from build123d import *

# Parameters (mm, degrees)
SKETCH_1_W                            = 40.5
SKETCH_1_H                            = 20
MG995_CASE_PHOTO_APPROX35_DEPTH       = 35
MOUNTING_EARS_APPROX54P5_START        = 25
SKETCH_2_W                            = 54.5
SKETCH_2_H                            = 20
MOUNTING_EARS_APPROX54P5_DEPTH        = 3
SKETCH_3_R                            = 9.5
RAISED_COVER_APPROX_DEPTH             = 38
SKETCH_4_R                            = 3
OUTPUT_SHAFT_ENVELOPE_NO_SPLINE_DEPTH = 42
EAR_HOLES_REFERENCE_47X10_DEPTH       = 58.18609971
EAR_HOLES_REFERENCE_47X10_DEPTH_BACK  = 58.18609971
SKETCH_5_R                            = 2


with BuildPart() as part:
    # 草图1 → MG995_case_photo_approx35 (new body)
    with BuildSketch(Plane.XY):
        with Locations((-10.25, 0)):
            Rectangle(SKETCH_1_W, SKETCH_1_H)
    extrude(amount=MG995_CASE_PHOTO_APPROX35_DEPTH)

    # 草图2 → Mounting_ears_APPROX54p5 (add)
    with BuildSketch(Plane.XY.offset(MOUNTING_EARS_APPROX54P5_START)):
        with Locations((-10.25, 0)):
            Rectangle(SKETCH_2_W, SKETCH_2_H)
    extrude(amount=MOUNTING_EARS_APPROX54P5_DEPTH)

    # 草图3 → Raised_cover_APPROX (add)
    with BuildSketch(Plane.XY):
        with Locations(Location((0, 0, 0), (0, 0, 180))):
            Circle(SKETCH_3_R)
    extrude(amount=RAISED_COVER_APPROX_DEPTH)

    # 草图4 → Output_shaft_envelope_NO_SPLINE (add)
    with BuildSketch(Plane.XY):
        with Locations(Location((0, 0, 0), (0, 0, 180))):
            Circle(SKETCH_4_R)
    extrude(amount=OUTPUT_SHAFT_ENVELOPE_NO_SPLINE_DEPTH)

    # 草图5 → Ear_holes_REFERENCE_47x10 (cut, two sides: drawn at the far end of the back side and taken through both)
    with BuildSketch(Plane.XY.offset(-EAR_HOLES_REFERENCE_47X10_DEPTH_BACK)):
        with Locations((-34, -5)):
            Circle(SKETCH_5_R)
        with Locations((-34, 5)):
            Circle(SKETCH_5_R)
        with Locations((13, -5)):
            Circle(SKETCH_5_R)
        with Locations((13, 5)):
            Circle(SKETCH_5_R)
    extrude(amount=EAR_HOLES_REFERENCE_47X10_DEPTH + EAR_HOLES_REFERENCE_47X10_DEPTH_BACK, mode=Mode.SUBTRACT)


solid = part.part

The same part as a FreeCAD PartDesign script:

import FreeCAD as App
import Part
import Sketcher
from FreeCAD import Vector
Q = App.Units.Quantity

doc = App.newDocument("Part")
body = doc.addObject("PartDesign::Body", "Body")

# Sketch on XY plane
sketch1 = body.newObject("Sketcher::SketchObject", "Sketch")
sketch1.AttachmentSupport = (doc.getObject("XY_Plane"), [""])
sketch1.MapMode = "FlatFace"
sketch1.addGeometry([
    Part.LineSegment(Vector(-30, 10, 0), Vector(-30, -10, 0)),
    Part.LineSegment(Vector(-30, -10, 0), Vector(10, -10, 0)),
    Part.LineSegment(Vector(10, -10, 0), Vector(10, 10, 0)),
    Part.LineSegment(Vector(10, 10, 0), Vector(-30, 10, 0)),
], False)
sketch1.addConstraint([
    Sketcher.Constraint("Coincident", 0, 2, 1, 1),
    Sketcher.Constraint("Coincident", 1, 2, 2, 1),
    Sketcher.Constraint("Coincident", 2, 2, 3, 1),
    Sketcher.Constraint("Coincident", 3, 2, 0, 1),
    Sketcher.Constraint("Vertical", 0),
    Sketcher.Constraint("Horizontal", 1),
    Sketcher.Constraint("Vertical", 2),
    Sketcher.Constraint("Horizontal", 3),
    Sketcher.Constraint("DistanceY", 0, 2, 0, 1, Q("20 mm")),
    Sketcher.Constraint("DistanceX", 1, 1, 1, 2, Q("40.5 mm")),
    Sketcher.Constraint("DistanceY", 0, 2, -1, 1, Q("10 mm")),
    Sketcher.Constraint("DistanceX", -1, 1, 1, 2, Q("10 mm")),
])
pad1 = body.newObject("PartDesign::Pad", "Pad")
pad1.Profile = sketch1
pad1.Length = 35

# Sketch on XY plane
sketch2 = body.newObject("Sketcher::SketchObject", "Sketch001")
sketch2.AttachmentSupport = (doc.getObject("XY_Plane"), [""])
sketch2.MapMode = "FlatFace"
sketch2.AttachmentOffset = App.Placement(Vector(0, 0, 25), App.Rotation())
sketch2.addGeometry([
    Part.LineSegment(Vector(-38, 10, 0), Vector(-38, -10, 0)),
    Part.LineSegment(Vector(-38, -10, 0), Vector(17, -10, 0)),
    Part.LineSegment(Vector(17, -10, 0), Vector(17, 10, 0)),
    Part.LineSegment(Vector(17, 10, 0), Vector(-38, 10, 0)),
], False)
sketch2.addConstraint([
    Sketcher.Constraint("Coincident", 0, 2, 1, 1),
    Sketcher.Constraint("Coincident", 1, 2, 2, 1),
    Sketcher.Constraint("Coincident", 2, 2, 3, 1),
    Sketcher.Constraint("Coincident", 3, 2, 0, 1),
    Sketcher.Constraint("Vertical", 0),
    Sketcher.Constraint("Horizontal", 1),
    Sketcher.Constraint("Vertical", 2),
    Sketcher.Constraint("Horizontal", 3),
    Sketcher.Constraint("DistanceY", 0, 2, 0, 1, Q("20 mm")),
    Sketcher.Constraint("DistanceX", 1, 1, 1, 2, Q("54.5 mm")),
    Sketcher.Constraint("DistanceY", 0, 2, -1, 1, Q("10 mm")),
    Sketcher.Constraint("DistanceX", -1, 1, 1, 2, Q("17 mm")),
])
pad2 = body.newObject("PartDesign::Pad", "Pad001")
pad2.Profile = sketch2
pad2.Length = 3

# Sketch on XY plane
sketch3 = body.newObject("Sketcher::SketchObject", "Sketch002")
sketch3.AttachmentSupport = (doc.getObject("XY_Plane"), [""])
sketch3.MapMode = "FlatFace"
sketch3.addGeometry(Part.Circle(Vector(0, 0, 0), Vector(0, 0, 1), 10), False)
sketch3.addConstraint([
    Sketcher.Constraint("Coincident", 0, 3, -1, 1),
    Sketcher.Constraint("Diameter", 0, Q("19 mm")),
])
pad3 = body.newObject("PartDesign::Pad", "Pad002")
pad3.Profile = sketch3
pad3.Length = 38

# Sketch on XY plane
sketch4 = body.newObject("Sketcher::SketchObject", "Sketch003")
sketch4.AttachmentSupport = (doc.getObject("XY_Plane"), [""])
sketch4.MapMode = "FlatFace"
sketch4.addGeometry(Part.Circle(Vector(0, 0, 0), Vector(0, 0, 1), 3), False)
sketch4.addConstraint([
    Sketcher.Constraint("Coincident", 0, 3, -1, 1),
    Sketcher.Constraint("Diameter", 0, Q("6 mm")),
])
pad4 = body.newObject("PartDesign::Pad", "Pad003")
pad4.Profile = sketch4
pad4.Length = 42

# Sketch on XY plane
sketch5 = body.newObject("Sketcher::SketchObject", "Sketch004")
sketch5.AttachmentSupport = (doc.getObject("XY_Plane"), [""])
sketch5.MapMode = "FlatFace"
sketch5.addGeometry([
    Part.Circle(Vector(-34, -5, 0), Vector(0, 0, 1), 2),
    Part.Circle(Vector(-34, 5, 0), Vector(0, 0, 1), 2),
    Part.Circle(Vector(13, -5, 0), Vector(0, 0, 1), 2),
    Part.Circle(Vector(13, 5, 0), Vector(0, 0, 1), 2),
], False)
sketch5.addConstraint([
    Sketcher.Constraint("Equal", 0, 1),
    Sketcher.Constraint("Equal", 1, 2),
    Sketcher.Constraint("Equal", 2, 3),
    Sketcher.Constraint("Symmetric", 0, 3, 1, 3, -1),
    Sketcher.Constraint("Symmetric", 2, 3, 3, 3, -1),
    Sketcher.Constraint("Horizontal", 0, 3, 2, 3),
    Sketcher.Constraint("Diameter", 0, Q("4 mm")),
    Sketcher.Constraint("DistanceX", 0, 3, -1, 1, Q("34 mm")),
    Sketcher.Constraint("DistanceY", 0, 3, -1, 1, Q("5 mm")),
    Sketcher.Constraint("DistanceX", -1, 1, 2, 3, Q("13 mm")),
])
pocket1 = body.newObject("PartDesign::Pocket", "Pocket")
pocket1.Profile = sketch5
pocket1.Type = "ThroughAll"
pocket1.Midplane = True

doc.recompute()
